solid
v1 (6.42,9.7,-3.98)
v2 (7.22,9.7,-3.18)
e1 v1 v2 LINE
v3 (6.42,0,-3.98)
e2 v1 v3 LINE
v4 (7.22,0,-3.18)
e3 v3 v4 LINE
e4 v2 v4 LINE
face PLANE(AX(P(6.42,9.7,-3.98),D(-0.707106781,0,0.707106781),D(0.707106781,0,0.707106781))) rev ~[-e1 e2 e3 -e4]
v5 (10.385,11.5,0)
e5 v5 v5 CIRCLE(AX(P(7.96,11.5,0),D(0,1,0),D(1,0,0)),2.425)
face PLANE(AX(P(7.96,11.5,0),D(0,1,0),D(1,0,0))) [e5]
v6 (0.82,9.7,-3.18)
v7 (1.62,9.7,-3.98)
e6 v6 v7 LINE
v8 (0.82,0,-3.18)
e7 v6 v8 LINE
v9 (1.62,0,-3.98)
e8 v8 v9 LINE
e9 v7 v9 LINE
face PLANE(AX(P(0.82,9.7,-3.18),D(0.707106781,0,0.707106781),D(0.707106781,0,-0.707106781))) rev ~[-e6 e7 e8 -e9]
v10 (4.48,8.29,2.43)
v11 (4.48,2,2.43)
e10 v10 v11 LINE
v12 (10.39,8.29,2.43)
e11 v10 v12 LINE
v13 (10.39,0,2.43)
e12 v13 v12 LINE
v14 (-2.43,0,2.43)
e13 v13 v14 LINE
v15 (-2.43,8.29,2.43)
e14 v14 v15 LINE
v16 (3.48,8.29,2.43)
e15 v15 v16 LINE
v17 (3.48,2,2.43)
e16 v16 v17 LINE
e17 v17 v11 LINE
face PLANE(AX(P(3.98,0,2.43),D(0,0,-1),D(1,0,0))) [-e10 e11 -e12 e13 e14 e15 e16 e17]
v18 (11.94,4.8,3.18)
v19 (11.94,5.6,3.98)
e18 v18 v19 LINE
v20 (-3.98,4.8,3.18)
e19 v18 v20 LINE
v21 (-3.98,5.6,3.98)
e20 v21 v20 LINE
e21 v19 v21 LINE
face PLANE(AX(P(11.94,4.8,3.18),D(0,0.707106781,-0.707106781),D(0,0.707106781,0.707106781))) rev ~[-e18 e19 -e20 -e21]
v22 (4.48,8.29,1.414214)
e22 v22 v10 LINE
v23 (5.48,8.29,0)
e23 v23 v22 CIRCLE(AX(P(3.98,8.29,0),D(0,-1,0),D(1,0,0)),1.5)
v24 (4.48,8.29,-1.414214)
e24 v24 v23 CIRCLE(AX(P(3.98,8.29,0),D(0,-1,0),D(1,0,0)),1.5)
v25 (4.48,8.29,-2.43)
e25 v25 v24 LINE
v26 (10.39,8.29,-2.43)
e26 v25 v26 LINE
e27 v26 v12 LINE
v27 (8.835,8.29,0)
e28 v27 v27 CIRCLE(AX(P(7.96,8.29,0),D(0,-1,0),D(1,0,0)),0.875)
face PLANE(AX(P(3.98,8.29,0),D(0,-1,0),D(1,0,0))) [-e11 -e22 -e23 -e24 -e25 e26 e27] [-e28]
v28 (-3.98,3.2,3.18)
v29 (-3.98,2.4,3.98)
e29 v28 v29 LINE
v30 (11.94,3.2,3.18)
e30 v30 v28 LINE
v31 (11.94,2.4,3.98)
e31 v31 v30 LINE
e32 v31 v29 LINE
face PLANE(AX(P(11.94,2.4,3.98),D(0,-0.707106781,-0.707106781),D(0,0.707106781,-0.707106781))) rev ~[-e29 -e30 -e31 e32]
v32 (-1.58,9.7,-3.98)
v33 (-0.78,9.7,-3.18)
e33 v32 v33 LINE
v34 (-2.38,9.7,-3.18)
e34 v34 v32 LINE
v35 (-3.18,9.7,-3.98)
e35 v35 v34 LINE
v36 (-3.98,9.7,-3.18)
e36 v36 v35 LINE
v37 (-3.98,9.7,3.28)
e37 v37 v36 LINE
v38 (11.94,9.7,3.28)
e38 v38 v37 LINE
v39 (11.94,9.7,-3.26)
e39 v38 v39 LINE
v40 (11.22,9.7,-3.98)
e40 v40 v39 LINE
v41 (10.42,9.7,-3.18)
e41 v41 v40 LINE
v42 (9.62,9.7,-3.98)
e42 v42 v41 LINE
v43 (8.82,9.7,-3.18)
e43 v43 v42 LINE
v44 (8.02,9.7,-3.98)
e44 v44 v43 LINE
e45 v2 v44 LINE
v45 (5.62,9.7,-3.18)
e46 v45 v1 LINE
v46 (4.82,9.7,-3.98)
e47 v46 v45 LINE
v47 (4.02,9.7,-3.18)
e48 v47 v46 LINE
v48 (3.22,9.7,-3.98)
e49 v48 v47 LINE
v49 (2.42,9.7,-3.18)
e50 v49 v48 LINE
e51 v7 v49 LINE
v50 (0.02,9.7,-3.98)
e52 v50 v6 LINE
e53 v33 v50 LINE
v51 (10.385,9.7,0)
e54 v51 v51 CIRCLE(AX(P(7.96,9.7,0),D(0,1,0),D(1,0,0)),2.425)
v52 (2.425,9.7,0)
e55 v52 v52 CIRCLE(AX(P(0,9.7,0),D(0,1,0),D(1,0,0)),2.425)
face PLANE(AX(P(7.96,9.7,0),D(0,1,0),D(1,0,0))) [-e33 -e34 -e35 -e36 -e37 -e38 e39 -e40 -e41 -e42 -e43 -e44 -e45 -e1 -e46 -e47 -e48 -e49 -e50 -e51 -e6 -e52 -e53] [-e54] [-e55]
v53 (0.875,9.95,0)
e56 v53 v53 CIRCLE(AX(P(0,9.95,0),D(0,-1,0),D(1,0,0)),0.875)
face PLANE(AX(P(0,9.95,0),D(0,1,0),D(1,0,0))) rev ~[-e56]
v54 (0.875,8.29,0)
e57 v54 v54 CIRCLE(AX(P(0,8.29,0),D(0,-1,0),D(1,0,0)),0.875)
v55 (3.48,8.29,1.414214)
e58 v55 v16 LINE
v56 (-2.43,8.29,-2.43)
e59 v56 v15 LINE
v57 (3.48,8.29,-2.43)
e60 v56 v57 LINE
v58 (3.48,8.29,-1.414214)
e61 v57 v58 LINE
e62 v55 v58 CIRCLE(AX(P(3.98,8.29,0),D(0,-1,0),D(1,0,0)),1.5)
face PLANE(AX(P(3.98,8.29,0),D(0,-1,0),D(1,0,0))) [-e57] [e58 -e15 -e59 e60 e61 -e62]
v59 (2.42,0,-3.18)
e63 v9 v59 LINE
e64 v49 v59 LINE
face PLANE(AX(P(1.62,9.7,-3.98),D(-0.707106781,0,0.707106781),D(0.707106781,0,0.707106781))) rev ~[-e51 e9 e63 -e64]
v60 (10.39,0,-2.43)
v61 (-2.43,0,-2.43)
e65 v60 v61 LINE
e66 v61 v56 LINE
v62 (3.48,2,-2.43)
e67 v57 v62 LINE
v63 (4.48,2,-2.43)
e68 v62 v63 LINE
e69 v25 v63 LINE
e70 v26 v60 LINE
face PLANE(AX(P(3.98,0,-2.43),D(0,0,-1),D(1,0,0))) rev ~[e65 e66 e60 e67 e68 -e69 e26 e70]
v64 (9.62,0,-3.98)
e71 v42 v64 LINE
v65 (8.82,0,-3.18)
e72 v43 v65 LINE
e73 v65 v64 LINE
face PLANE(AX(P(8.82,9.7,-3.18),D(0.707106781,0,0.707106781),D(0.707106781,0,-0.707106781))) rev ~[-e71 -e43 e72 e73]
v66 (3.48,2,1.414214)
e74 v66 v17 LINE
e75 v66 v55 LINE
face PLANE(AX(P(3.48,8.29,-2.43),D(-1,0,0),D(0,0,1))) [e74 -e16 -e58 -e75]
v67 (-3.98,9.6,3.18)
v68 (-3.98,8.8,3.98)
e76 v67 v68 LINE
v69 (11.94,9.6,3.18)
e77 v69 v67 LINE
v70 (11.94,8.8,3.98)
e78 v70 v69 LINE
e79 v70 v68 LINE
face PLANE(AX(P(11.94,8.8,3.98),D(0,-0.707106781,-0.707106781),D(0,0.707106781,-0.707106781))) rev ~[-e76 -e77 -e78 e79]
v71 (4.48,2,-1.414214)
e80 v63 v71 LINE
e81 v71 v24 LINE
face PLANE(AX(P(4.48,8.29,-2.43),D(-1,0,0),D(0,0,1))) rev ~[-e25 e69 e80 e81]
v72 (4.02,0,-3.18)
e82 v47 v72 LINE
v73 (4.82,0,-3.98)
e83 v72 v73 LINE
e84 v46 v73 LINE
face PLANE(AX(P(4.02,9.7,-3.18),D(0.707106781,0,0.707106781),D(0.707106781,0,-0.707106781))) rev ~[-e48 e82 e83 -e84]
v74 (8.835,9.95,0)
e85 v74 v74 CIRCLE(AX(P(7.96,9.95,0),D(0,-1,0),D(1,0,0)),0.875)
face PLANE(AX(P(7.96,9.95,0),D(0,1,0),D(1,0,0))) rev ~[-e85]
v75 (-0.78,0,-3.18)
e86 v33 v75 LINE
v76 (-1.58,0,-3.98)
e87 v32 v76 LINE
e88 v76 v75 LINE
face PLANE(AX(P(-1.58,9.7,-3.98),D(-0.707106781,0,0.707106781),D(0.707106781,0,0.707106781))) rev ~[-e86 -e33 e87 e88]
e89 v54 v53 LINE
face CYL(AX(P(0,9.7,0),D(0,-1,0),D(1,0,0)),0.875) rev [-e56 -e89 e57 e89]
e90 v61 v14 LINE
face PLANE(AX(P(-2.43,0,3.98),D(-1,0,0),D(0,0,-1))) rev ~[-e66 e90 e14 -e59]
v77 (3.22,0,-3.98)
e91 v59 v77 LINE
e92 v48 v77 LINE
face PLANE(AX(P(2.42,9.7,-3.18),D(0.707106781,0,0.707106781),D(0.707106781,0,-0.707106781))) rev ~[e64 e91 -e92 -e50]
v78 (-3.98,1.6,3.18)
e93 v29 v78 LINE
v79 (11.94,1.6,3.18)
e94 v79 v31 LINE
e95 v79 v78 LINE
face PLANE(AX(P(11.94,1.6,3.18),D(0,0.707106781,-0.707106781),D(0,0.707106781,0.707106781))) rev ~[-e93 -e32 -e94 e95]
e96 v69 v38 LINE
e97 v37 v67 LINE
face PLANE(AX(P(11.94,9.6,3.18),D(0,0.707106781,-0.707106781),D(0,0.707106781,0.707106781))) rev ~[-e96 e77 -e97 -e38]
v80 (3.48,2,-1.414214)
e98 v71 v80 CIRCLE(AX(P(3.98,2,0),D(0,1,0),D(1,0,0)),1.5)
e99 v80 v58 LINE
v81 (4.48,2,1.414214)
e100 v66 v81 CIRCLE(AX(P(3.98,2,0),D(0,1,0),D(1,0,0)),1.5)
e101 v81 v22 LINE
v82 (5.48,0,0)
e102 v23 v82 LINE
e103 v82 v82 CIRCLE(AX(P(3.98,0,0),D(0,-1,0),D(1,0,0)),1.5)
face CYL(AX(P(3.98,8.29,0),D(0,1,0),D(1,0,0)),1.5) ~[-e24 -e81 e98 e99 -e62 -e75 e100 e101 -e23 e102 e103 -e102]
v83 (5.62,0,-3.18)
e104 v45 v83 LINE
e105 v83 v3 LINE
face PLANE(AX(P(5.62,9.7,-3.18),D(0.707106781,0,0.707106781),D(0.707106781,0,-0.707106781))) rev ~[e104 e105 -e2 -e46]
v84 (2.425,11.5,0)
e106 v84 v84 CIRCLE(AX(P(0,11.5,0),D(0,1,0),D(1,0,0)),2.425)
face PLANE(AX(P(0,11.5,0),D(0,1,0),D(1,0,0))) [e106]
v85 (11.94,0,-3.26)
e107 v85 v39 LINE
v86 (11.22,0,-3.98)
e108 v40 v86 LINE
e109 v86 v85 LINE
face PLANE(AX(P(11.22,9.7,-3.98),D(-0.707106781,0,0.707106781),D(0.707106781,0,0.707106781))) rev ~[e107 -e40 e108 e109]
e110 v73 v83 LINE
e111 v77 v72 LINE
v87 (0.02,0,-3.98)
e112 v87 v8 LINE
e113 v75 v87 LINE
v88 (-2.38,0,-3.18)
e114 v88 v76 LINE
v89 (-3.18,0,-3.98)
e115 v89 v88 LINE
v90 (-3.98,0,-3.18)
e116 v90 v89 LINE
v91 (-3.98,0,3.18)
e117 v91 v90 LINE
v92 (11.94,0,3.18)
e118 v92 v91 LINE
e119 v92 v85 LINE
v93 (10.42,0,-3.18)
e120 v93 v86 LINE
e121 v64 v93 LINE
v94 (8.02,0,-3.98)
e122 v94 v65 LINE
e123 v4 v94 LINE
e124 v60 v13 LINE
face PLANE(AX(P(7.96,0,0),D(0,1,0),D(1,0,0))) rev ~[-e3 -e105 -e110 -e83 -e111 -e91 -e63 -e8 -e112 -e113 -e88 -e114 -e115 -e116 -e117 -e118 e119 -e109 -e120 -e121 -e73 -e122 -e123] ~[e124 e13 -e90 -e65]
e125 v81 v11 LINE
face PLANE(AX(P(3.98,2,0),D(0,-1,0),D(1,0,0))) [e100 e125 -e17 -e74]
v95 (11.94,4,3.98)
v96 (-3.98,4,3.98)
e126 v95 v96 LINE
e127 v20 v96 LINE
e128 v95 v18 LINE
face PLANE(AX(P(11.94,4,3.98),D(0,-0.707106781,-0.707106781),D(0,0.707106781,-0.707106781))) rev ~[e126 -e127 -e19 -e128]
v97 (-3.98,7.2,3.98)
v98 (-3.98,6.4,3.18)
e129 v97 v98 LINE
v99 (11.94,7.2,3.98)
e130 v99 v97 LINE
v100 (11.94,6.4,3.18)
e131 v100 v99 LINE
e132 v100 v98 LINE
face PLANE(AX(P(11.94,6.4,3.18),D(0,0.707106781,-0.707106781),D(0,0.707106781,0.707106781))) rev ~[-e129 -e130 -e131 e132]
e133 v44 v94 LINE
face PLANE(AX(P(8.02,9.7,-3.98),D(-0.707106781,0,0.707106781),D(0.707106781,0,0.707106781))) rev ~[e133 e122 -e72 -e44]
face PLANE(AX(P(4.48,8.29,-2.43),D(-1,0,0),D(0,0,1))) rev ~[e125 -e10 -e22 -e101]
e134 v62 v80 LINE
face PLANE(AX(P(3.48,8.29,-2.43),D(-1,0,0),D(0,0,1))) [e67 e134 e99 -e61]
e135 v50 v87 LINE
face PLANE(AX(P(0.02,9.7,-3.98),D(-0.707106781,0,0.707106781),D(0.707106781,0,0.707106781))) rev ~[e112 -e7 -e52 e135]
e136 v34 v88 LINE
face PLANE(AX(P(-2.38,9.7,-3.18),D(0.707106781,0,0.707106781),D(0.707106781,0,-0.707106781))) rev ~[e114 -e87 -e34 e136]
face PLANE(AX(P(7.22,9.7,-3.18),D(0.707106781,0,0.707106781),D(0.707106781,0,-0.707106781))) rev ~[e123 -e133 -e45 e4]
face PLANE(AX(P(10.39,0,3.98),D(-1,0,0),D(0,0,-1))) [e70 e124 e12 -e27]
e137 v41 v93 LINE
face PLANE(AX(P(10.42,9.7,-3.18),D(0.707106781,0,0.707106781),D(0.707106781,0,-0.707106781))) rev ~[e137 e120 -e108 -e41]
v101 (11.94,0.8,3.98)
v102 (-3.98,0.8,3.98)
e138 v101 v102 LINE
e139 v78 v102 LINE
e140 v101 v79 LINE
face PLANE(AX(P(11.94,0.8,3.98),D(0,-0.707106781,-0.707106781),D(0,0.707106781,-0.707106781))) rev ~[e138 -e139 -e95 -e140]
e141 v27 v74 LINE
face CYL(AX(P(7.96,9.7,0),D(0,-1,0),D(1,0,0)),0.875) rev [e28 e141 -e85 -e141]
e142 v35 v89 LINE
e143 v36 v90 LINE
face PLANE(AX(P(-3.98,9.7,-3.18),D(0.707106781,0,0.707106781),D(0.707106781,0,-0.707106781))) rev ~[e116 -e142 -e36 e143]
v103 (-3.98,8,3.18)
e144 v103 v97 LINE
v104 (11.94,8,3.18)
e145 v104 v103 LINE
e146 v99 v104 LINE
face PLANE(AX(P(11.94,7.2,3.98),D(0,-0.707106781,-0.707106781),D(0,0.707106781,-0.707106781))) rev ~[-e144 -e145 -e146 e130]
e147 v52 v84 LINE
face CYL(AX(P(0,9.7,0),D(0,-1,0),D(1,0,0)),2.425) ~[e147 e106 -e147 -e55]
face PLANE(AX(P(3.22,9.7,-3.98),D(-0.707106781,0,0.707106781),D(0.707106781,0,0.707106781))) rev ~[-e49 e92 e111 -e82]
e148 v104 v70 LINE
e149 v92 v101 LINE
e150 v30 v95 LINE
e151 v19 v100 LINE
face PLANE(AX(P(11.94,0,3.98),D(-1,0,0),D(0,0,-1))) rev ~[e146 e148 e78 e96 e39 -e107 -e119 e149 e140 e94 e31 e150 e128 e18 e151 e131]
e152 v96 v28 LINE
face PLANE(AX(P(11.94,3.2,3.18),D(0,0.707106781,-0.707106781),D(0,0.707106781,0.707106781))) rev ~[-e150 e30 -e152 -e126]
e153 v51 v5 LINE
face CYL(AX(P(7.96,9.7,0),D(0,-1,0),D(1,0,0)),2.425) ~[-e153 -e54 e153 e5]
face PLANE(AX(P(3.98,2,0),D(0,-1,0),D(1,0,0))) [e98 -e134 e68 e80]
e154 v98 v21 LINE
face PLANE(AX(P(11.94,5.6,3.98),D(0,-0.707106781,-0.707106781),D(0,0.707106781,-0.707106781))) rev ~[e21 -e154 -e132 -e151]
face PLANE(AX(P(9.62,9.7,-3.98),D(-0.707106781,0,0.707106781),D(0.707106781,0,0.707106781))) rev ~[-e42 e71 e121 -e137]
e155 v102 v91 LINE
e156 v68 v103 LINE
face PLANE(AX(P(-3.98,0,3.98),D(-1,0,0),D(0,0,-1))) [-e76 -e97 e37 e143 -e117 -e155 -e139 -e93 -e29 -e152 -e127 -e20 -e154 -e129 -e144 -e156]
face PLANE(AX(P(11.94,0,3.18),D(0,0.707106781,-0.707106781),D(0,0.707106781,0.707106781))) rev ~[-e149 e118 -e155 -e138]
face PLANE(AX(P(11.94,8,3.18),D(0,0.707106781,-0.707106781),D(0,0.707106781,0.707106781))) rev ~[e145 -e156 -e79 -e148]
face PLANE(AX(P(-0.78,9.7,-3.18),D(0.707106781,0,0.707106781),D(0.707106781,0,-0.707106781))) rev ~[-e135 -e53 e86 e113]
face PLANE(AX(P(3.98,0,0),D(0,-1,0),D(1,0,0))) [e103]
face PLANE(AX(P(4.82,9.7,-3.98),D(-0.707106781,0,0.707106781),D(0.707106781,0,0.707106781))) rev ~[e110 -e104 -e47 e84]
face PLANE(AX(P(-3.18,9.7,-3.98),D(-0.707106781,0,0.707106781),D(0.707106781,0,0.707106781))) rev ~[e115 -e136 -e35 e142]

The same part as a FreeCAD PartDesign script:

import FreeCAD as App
import Part
import Sketcher
Q = App.Units.Quantity


def faces_at(feature, points):
    """Names of the faces that lie closest to the given points."""
    faces = feature.Shape.Faces
    near = lambda p: min(range(len(faces)), key=lambda i: faces[i].distToShape(Part.Vertex(*p))[0])
    return sorted({f"Face{near(p) + 1}" for p in points})


def add_polygon(sketch, points):
    """Adds a closed chain of lines whose ends are joined by coincident constraints."""
    first, n = sketch.GeometryCount, len(points)
    for a, b in zip(points, points[1:] + points[:1]):
        sketch.addGeometry(Part.LineSegment(App.Vector(*a, 0), App.Vector(*b, 0)), False)
    for i in range(n):
        sketch.addConstraint(Sketcher.Constraint("Coincident", first + i, 2, first + (i + 1) % n, 1))

doc = App.newDocument("Part")
body = doc.addObject("PartDesign::Body", "Body")

sketch1 = doc.addObject("Sketcher::SketchObject", "Sketch")
body.addObject(sketch1)
sketch1.AttachmentSupport = (doc.XZ_Plane, [""])
sketch1.MapMode = "FlatFace"
add_polygon(sketch1, [(-4, -4), (-4, 4), (4, 4), (4, -4)])
sketch1.addConstraint([
    Sketcher.Constraint("Vertical", 0),
    Sketcher.Constraint("Horizontal", 1),
    Sketcher.Constraint("Vertical", 2),
    Sketcher.Constraint("Horizontal", 3),
    Sketcher.Constraint("Symmetric", 0, 2, 2, 2, -1, 1),
    Sketcher.Constraint("Equal", 3, 0),
    Sketcher.Constraint("DistanceX", 1, 1, 1, 2, Q("7.96 mm")),
])
pad1 = doc.addObject("PartDesign::Pad", "Pad")
body.addObject(pad1)
pad1.Profile = sketch1
pad1.Length = 9.7
pad1.Reversed = True

sketch2 = doc.addObject("Sketcher::SketchObject", "Sketch001")
body.addObject(sketch2)
sketch2.AttachmentSupport = (doc.XZ_Plane, [""])
sketch2.MapMode = "FlatFace"
sketch2.AttachmentOffset = App.Placement(App.Vector(0, 0, -9.7), App.Rotation())
sketch2.addGeometry(Part.Circle(App.Vector(0, 0, 0), App.Vector(0, 0, 1), 2.4), False)
sketch2.addConstraint([
    Sketcher.Constraint("Coincident", 0, 3, -1, 1),
    Sketcher.Constraint("Diameter", 0, Q("4.85 mm")),
])
pad2 = doc.addObject("PartDesign::Pad", "Pad001")
body.addObject(pad2)
pad2.Profile = sketch2
pad2.Length = 1.8
pad2.Reversed = True
doc.recompute()

linearpattern = doc.addObject("PartDesign::LinearPattern", "LinearPattern")
body.addObject(linearpattern)
linearpattern.Originals = [pad1, pad2]
linearpattern.Direction = (doc.X_Axis, [""])
linearpattern.Mode = "offset"
linearpattern.Offset = 7.96
linearpattern.Occurrences = 2
body.Tip = linearpattern
doc.recompute()

thickness = doc.addObject("PartDesign::Thickness", "Thickness")
body.addObject(thickness)
thickness.Base = (linearpattern, faces_at(linearpattern, [(3.98, 0, 0)]))
thickness.Value = 1.55
thickness.Reversed = True
thickness.Join = "Intersection"

sketch3 = doc.addObject("Sketcher::SketchObject", "Sketch002")
body.addObject(sketch3)
sketch3.AttachmentSupport = (doc.XZ_Plane, [""])
sketch3.MapMode = "FlatFace"
sketch3.AttachmentOffset = App.Placement(App.Vector(0, 0, -8.15), App.Rotation())
add_polygon(sketch3, [(-2.4, 2.4), (-2.4, -2.4), (10.4, -2.4), (10.4, 2.4)])
sketch3.addConstraint([
    Sketcher.Constraint("Vertical", 0),
    Sketcher.Constraint("Horizontal", 1),
    Sketcher.Constraint("Vertical", 2),
    Sketcher.Constraint("Horizontal", 3),
    Sketcher.Constraint("DistanceX", 1, 1, 1, 2, Q("12.82 mm")),
    Sketcher.Constraint("DistanceY", 0, 2, 0, 1, Q("4.86 mm")),
    Sketcher.Constraint("DistanceX", 0, 2, -1, 1, Q("2.43 mm")),
    Sketcher.Constraint("DistanceY", 0, 2, -1, 1, Q("2.43 mm")),
])
pocket1 = doc.addObject("PartDesign::Pocket", "Pocket")
body.addObject(pocket1)
pocket1.Profile = sketch3
pocket1.Length = 0.14

sketch4 = doc.addObject("Sketcher::SketchObject", "Sketch003")
body.addObject(sketch4)
sketch4.AttachmentSupport = (doc.XZ_Plane, [""])
sketch4.MapMode = "FlatFace"
sketch4.AttachmentOffset = App.Placement(App.Vector(0, 0, -8.29), App.Rotation())
sketch4.addGeometry(Part.Circle(App.Vector(4, 0, 0), App.Vector(0, 0, 1), 1.5), False)
sketch4.addConstraint([
    Sketcher.Constraint("PointOnObject", 0, 3, -1),
    Sketcher.Constraint("Diameter", 0, Q("3 mm")),
    Sketcher.Constraint("DistanceX", -1, 1, 0, 3, Q("3.98 mm")),
])
pad3 = doc.addObject("PartDesign::Pad", "Pad002")
body.addObject(pad3)
pad3.Profile = sketch4
pad3.Length = 8.29

sketch5 = doc.addObject("Sketcher::SketchObject", "Sketch004")
body.addObject(sketch5)
sketch5.AttachmentSupport = (doc.XZ_Plane, [""])
sketch5.MapMode = "FlatFace"
sketch5.AttachmentOffset = App.Placement(App.Vector(0, 0, -8.29), App.Rotation())
add_polygon(sketch5, [(3.5, 2.4), (3.5, -2.4), (4.5, -2.4), (4.5, 2.4)])
sketch5.addConstraint([
    Sketcher.Constraint("Vertical", 0),
    Sketcher.Constraint("Horizontal", 1),
    Sketcher.Constraint("Vertical", 2),
    Sketcher.Constraint("Horizontal", 3),
    Sketcher.Constraint("DistanceX", 1, 1, 1, 2, Q("1 mm")),
    Sketcher.Constraint("DistanceY", 0, 2, 0, 1, Q("4.86 mm")),
    Sketcher.Constraint("DistanceX", -1, 1, 0, 2, Q("3.48 mm")),
    Sketcher.Constraint("DistanceY", 0, 2, -1, 1, Q("2.43 mm")),
])
pad4 = doc.addObject("PartDesign::Pad", "Pad003")
body.addObject(pad4)
pad4.Profile = sketch5
pad4.Length = 6.29

sketch6 = doc.addObject("Sketcher::SketchObject", "Sketch005")
body.addObject(sketch6)
sketch6.AttachmentSupport = (doc.YZ_Plane, [""])
sketch6.MapMode = "FlatFace"
sketch6.AttachmentOffset = App.Placement(App.Vector(0, 0, 11.94), App.Rotation())
add_polygon(sketch6, [(-0.8, 4), (0, 3.2), (0.8, 4)])
sketch6.addConstraint([
    Sketcher.Constraint("Horizontal", 2),
    Sketcher.Constraint("PointOnObject", 0, 2, -2),
    Sketcher.Constraint("Perpendicular", 0, 1),
    Sketcher.Constraint("Equal", 0, 1),
    Sketcher.Constraint("DistanceX", 2, 2, 2, 1, Q("1.6 mm")),
    Sketcher.Constraint("DistanceY", -1, 1, 0, 2, Q("3.18 mm")),
])
pocket2 = doc.addObject("PartDesign::Pocket", "Pocket001")
body.addObject(pocket2)
pocket2.Profile = sketch6
pocket2.Type = "ThroughAll"
doc.recompute()

linearpattern2 = doc.addObject("PartDesign::LinearPattern", "LinearPattern001")
body.addObject(linearpattern2)
linearpattern2.Originals = [pocket2]
linearpattern2.Direction = (doc.Y_Axis, [""])
linearpattern2.Mode = "offset"
linearpattern2.Offset = 1.6
linearpattern2.Occurrences = 7
body.Tip = linearpattern2

sketch7 = doc.addObject("Sketcher::SketchObject", "Sketch006")
body.addObject(sketch7)
sketch7.AttachmentSupport = (doc.XZ_Plane, [""])
sketch7.MapMode = "FlatFace"
sketch7.AttachmentOffset = App.Placement(App.Vector(0, 0, -9.7), App.Rotation())
add_polygon(sketch7, [(-4, -3.2), (-3.2, -4), (-4.8, -4)])
sketch7.addConstraint([
    Sketcher.Constraint("Horizontal", 1),
    Sketcher.Constraint("Perpendicular", 0, 2),
    Sketcher.Constraint("Equal", 0, 2),
    Sketcher.Constraint("DistanceX", 1, 2, 1, 1, Q("1.6 mm")),
    Sketcher.Constraint("DistanceX", 0, 2, -1, 1, Q("3.18 mm")),
    Sketcher.Constraint("DistanceY", 0, 2, -1, 1, Q("3.98 mm")),
])
pocket3 = doc.addObject("PartDesign::Pocket", "Pocket002")
body.addObject(pocket3)
pocket3.Profile = sketch7
pocket3.Type = "ThroughAll"
pocket3.Reversed = True
doc.recompute()

linearpattern3 = doc.addObject("PartDesign::LinearPattern", "LinearPattern002")
body.addObject(linearpattern3)
linearpattern3.Originals = [pocket3]
linearpattern3.Direction = (doc.X_Axis, [""])
linearpattern3.Mode = "offset"
linearpattern3.Offset = 1.6
linearpattern3.Occurrences = 11
body.Tip = linearpattern3

doc.recompute()
